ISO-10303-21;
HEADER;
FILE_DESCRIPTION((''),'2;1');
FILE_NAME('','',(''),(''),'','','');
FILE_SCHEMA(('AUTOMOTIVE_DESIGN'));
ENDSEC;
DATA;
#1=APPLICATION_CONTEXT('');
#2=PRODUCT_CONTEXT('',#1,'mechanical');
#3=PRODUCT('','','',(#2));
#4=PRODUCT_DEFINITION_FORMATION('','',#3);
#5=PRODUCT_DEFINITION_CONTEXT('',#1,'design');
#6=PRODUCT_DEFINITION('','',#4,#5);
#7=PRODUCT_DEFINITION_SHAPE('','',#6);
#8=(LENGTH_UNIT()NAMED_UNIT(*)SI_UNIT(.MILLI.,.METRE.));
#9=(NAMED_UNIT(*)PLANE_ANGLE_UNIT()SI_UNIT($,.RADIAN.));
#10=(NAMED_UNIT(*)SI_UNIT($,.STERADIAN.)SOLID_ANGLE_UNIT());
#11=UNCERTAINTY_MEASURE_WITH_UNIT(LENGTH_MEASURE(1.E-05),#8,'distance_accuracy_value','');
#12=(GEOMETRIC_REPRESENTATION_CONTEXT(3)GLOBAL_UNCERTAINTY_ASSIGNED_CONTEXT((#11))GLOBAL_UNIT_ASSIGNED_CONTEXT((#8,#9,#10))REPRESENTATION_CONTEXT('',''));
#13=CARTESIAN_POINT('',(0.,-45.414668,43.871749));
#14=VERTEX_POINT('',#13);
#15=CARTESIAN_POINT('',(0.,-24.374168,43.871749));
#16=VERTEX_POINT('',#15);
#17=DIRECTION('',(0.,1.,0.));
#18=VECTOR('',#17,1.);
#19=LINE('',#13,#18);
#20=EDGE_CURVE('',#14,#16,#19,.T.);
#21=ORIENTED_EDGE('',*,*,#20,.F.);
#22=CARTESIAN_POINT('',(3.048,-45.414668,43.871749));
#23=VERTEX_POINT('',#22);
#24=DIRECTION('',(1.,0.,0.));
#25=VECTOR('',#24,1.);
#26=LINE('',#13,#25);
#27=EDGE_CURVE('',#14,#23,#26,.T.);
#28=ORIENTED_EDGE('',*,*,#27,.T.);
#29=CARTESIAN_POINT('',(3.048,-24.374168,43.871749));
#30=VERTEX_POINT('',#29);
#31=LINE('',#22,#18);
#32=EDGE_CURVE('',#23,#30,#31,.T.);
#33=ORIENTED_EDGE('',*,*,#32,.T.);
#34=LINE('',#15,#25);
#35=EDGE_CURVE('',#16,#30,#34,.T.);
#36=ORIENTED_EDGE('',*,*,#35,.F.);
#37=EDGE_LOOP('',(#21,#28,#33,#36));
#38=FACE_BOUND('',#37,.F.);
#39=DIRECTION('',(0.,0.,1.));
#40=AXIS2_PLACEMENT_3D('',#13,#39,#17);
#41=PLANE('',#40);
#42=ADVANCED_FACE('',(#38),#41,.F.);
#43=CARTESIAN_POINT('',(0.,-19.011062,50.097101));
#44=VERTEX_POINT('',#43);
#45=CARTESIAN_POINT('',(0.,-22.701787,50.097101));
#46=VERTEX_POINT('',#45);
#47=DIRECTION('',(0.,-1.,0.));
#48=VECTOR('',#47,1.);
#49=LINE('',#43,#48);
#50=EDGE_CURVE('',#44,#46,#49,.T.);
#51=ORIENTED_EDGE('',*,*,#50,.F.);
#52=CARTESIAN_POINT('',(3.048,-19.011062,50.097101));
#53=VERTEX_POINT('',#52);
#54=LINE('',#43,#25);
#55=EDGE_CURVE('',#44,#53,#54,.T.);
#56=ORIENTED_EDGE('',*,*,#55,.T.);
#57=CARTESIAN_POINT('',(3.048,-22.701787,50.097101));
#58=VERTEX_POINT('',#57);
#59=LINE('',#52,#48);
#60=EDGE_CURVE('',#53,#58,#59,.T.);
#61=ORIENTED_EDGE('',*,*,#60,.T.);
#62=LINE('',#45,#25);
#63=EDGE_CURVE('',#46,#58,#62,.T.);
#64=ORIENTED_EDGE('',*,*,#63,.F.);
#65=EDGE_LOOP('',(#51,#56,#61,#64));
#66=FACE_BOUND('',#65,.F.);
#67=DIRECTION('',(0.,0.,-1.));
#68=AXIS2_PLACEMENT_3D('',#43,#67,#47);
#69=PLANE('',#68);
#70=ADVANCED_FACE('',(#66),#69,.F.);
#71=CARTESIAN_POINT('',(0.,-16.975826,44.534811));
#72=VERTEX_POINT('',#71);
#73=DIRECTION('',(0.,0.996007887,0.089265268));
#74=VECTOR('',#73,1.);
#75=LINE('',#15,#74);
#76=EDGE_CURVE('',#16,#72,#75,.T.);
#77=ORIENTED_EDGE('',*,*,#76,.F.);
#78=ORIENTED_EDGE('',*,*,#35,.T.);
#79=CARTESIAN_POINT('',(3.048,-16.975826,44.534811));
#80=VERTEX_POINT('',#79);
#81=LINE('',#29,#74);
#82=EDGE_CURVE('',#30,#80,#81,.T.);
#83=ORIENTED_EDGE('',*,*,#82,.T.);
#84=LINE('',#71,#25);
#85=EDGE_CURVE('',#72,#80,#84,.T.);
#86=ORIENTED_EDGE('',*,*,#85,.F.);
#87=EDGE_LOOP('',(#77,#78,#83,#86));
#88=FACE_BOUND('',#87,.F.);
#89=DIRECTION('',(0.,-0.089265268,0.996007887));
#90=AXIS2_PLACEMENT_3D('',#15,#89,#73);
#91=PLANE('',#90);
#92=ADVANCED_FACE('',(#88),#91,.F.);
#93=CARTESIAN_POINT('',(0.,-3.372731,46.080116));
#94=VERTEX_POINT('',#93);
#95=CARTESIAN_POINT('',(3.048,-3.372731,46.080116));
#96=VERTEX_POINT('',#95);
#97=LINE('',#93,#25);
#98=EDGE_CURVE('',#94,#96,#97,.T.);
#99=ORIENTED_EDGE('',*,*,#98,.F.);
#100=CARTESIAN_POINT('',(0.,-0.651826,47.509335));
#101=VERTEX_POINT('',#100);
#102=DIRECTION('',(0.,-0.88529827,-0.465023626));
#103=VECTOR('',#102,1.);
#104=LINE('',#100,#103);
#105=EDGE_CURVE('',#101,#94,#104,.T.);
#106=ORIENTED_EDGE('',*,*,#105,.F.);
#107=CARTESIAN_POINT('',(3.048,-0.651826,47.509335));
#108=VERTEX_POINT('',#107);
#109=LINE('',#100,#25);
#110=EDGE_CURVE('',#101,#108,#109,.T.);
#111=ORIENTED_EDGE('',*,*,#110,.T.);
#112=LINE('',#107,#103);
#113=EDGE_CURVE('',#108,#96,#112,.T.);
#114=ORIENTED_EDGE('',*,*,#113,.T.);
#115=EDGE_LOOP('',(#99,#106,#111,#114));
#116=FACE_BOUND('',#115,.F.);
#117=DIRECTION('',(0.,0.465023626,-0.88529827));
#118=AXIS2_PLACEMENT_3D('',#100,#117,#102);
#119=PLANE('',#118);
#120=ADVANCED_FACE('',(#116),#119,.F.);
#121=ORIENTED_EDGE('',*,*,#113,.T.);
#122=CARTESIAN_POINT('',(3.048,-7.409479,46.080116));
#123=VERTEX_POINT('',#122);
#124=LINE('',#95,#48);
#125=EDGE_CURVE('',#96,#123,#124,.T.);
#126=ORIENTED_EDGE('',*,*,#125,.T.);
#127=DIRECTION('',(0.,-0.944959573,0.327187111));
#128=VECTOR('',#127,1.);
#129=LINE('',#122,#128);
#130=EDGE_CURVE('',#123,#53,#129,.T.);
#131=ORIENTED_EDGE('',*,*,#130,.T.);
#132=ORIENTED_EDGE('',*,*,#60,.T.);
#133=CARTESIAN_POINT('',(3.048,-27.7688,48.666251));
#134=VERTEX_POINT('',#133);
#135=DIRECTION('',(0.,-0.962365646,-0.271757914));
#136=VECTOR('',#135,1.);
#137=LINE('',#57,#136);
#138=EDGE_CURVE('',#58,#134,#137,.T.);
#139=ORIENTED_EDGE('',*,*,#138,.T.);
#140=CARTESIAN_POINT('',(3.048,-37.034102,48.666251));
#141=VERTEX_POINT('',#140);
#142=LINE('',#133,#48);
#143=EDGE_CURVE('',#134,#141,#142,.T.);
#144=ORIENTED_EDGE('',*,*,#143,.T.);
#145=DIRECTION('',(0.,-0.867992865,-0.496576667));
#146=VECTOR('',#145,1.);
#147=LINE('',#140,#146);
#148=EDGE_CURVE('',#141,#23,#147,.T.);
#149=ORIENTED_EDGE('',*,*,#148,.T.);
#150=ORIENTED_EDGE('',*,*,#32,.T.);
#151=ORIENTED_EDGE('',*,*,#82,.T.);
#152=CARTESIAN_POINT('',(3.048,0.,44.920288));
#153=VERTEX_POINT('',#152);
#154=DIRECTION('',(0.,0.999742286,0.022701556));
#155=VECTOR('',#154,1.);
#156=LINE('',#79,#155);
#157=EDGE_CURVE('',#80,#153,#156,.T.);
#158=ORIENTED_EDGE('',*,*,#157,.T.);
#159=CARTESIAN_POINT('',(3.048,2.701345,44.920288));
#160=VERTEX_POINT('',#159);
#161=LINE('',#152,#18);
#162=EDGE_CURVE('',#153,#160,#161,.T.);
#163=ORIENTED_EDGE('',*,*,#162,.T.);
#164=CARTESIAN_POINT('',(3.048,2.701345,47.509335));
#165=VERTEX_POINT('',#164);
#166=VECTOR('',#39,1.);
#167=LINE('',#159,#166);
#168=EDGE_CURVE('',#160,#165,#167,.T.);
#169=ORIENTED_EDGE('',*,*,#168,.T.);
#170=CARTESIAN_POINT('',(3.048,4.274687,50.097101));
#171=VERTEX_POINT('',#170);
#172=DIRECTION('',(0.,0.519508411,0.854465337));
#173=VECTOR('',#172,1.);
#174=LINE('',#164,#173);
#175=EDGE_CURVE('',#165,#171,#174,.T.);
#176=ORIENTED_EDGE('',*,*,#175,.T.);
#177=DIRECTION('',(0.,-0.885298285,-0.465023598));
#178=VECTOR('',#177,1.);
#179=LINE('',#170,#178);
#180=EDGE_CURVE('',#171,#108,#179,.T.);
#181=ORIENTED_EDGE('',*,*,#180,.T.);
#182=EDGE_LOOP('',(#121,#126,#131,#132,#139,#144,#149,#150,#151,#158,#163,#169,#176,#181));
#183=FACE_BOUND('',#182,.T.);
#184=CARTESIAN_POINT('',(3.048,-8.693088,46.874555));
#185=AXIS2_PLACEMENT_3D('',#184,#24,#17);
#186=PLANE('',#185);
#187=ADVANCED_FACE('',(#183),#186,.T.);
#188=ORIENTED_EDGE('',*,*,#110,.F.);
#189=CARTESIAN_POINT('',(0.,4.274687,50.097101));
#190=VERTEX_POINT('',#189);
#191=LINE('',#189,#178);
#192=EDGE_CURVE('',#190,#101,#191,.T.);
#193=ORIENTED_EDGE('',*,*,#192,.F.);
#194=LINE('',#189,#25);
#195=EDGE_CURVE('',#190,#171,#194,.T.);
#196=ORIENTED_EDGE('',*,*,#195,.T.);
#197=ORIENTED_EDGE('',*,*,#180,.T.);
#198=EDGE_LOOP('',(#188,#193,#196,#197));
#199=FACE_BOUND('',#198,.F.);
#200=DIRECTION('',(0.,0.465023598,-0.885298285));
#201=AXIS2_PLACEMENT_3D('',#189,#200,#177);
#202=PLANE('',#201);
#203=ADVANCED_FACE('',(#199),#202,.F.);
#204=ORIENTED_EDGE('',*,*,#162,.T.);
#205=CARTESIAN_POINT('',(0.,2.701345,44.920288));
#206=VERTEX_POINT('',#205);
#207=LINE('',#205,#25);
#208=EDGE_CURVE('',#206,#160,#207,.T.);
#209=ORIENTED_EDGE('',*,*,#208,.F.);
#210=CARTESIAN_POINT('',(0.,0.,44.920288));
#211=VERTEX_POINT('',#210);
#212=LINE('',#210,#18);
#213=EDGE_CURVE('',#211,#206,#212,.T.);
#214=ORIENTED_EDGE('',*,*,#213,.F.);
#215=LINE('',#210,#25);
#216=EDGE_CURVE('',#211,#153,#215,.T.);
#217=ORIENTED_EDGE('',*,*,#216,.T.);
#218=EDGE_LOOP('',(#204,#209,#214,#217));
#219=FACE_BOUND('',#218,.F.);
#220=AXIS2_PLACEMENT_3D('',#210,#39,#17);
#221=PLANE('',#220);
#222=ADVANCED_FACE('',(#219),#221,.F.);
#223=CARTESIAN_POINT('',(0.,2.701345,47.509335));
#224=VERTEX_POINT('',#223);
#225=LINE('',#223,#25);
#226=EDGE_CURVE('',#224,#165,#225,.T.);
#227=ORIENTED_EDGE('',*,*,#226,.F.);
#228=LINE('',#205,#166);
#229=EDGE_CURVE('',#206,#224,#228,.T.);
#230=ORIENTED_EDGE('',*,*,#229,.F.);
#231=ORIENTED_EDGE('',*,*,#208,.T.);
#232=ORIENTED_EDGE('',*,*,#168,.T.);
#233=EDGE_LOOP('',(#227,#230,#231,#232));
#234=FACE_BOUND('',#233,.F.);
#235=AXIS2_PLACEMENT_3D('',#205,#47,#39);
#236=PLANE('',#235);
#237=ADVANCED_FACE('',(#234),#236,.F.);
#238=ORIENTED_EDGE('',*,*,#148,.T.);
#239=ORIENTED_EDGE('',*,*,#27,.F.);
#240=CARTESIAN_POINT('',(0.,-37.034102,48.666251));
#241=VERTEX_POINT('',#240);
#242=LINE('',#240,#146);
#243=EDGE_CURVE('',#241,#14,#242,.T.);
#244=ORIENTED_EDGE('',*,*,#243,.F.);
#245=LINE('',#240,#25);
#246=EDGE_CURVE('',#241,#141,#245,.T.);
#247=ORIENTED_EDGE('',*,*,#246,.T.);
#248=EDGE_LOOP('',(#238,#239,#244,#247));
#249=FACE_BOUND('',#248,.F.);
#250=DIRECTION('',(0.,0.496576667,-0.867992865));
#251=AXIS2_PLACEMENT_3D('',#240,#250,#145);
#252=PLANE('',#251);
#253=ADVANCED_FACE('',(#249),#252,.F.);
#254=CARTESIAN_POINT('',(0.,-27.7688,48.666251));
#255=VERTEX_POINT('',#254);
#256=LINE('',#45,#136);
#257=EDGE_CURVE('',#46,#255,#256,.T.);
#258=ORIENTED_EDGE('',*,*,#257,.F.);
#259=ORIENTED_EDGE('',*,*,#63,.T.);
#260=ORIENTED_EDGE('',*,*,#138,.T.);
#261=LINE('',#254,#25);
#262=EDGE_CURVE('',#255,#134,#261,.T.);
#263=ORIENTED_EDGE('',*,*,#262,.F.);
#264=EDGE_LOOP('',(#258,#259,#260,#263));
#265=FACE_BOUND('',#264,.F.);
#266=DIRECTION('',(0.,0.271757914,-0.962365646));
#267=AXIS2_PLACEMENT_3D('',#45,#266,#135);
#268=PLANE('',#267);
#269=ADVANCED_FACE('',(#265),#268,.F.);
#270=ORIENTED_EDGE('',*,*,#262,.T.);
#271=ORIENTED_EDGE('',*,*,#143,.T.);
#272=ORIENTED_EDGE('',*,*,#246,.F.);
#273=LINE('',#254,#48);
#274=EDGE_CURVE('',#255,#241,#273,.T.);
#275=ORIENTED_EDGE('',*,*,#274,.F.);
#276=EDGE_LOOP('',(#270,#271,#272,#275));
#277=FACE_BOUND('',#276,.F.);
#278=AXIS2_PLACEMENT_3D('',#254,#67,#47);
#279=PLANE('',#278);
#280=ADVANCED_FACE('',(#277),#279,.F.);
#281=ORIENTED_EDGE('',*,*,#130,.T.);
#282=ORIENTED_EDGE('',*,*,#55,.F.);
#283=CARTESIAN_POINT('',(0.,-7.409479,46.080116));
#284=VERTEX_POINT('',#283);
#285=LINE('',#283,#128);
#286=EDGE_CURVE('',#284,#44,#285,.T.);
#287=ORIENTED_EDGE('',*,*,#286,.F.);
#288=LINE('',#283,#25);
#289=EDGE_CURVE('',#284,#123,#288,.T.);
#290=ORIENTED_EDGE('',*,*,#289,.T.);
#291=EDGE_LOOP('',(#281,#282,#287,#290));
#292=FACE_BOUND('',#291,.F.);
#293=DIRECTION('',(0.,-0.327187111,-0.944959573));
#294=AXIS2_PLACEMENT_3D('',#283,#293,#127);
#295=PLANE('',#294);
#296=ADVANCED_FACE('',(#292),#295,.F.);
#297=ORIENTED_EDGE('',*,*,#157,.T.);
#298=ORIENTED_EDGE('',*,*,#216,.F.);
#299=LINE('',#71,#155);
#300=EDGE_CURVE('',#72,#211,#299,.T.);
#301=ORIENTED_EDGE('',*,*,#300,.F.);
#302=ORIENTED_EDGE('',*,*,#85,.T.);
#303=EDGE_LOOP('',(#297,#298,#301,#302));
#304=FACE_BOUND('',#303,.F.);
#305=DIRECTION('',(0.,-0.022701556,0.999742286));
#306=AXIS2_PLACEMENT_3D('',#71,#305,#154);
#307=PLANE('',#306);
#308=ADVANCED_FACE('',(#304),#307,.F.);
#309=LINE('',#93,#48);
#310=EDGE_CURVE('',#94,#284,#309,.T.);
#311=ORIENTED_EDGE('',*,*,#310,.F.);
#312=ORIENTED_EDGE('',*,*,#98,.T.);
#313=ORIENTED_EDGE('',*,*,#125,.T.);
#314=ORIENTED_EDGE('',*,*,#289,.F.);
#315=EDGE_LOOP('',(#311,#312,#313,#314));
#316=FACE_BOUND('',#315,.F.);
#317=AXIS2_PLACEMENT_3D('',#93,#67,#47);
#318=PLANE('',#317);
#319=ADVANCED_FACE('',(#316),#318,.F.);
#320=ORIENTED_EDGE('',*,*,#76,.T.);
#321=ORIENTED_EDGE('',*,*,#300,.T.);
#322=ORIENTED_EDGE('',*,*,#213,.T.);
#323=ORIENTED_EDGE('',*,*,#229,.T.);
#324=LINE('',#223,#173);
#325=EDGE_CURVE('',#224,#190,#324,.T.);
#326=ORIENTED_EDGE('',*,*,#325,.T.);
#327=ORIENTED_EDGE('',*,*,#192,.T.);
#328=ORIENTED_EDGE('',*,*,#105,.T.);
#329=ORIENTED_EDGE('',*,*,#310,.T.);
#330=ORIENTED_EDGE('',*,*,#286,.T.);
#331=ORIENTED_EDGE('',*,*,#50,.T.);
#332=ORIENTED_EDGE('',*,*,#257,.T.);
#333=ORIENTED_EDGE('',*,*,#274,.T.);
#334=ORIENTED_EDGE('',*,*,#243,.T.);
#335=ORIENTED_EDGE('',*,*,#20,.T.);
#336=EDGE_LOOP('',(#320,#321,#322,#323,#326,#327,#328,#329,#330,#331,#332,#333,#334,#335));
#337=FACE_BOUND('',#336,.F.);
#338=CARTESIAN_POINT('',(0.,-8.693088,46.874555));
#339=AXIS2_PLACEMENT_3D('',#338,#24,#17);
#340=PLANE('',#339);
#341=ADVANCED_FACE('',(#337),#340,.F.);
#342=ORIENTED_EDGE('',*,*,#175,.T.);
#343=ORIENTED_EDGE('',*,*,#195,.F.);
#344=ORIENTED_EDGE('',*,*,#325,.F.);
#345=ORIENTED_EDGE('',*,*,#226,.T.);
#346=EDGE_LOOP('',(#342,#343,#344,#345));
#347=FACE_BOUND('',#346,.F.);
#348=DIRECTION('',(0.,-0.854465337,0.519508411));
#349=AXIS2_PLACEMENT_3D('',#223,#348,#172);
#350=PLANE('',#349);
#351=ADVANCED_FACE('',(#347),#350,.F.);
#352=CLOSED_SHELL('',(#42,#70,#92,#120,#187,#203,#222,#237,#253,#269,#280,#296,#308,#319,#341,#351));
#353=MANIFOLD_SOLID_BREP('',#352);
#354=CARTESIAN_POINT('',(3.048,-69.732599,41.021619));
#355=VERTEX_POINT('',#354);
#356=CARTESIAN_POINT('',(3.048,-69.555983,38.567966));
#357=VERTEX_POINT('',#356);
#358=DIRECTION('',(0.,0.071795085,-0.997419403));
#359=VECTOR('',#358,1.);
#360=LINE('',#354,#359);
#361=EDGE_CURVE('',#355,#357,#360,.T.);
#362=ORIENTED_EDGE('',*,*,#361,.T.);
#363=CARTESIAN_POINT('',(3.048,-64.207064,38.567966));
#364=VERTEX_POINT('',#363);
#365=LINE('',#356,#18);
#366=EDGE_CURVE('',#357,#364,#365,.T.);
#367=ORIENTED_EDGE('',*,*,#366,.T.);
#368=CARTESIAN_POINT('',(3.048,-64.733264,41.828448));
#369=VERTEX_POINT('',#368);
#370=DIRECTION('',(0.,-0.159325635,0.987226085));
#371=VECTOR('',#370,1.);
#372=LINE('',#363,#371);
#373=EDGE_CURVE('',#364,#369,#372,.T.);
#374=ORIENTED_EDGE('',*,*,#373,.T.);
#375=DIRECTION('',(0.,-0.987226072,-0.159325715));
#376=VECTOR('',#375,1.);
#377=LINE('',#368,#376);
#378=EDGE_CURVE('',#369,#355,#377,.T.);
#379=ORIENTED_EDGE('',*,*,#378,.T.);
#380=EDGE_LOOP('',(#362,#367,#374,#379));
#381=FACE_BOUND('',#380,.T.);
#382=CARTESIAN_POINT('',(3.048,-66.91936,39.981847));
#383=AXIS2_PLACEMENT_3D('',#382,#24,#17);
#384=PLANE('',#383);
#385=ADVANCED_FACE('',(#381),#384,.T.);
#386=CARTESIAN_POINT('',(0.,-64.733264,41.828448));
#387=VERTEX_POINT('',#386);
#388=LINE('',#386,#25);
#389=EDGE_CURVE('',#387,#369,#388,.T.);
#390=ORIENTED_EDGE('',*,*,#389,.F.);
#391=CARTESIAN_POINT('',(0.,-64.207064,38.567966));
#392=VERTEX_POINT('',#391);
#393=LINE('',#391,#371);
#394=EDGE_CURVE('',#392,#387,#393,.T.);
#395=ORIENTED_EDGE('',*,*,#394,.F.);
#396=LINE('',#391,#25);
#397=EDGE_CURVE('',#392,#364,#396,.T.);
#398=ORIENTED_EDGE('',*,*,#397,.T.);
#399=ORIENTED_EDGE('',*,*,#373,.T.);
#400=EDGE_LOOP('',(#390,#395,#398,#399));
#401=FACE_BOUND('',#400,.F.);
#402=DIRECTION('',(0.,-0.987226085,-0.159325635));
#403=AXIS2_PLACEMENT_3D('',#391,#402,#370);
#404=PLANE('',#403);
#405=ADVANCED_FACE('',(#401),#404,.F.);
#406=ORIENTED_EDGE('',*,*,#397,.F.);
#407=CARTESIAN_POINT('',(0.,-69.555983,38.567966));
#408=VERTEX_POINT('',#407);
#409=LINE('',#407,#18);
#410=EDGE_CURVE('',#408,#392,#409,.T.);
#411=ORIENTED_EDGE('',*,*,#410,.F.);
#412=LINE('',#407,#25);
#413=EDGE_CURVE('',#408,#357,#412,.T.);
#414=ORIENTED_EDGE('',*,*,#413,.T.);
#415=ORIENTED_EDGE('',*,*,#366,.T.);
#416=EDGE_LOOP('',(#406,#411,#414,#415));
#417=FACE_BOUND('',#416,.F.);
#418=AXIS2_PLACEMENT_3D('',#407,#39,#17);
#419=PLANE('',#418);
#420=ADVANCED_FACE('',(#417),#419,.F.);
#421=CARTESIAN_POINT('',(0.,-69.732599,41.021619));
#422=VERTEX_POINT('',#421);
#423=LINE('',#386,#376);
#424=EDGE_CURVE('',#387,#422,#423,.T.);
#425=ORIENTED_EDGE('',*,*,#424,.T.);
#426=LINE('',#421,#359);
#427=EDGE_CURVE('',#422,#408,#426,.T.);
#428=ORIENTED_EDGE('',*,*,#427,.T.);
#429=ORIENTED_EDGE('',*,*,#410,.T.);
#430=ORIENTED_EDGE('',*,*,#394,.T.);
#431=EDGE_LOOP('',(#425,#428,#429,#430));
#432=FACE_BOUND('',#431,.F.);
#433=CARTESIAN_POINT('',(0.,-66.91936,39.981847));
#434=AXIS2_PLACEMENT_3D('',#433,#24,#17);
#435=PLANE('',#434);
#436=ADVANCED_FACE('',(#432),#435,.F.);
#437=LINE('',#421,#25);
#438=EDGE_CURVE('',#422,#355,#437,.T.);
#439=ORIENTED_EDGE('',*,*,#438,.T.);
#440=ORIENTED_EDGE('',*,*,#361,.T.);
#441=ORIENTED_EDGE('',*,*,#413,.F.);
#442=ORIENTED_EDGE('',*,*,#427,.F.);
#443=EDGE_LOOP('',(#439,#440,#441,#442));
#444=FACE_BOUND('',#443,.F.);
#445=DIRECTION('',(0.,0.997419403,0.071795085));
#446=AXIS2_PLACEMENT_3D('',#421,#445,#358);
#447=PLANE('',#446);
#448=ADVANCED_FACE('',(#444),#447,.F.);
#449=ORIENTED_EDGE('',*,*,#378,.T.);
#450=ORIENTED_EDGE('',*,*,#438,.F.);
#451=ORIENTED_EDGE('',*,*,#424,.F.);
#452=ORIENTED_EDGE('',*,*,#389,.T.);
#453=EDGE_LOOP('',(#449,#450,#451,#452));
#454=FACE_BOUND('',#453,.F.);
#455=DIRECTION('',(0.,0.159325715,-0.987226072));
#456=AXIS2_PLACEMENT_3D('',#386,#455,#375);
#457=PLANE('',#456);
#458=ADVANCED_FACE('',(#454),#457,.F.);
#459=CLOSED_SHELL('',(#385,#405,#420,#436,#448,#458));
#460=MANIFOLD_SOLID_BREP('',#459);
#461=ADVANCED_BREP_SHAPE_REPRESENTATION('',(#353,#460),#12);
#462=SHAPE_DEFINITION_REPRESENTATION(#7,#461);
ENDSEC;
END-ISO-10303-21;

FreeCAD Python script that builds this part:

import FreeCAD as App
import Part
import Sketcher
from FreeCAD import Vector
Q = App.Units.Quantity


def add_polygon(sketch, points):
    """Adds a closed chain of lines whose ends are joined by coincident constraints."""
    first, n = sketch.GeometryCount, len(points)
    for a, b in zip(points, points[1:] + points[:1]):
        sketch.addGeometry(Part.LineSegment(App.Vector(*a, 0), App.Vector(*b, 0)), False)
    for i in range(n):
        sketch.addConstraint(Sketcher.Constraint("Coincident", first + i, 2, first + (i + 1) % n, 1))

doc = App.newDocument("Part")
body = doc.addObject("PartDesign::Body", "Body")
body.AllowCompound = True

sketch1 = body.newObject("Sketcher::SketchObject", "Sketch")
sketch1.AttachmentSupport = (doc.getObject("YZ_Plane"), [""])
sketch1.MapMode = "FlatFace"
add_polygon(sketch1, [(-16.975826, 44.534811), (0, 44.920288), (2.701345, 44.920288), (2.701345, 47.509335), (4.274687, 50.097101), (-0.651826, 47.509335), (-3.372731, 46.080116), (-7.409479, 46.080116), (-19.011062, 50.097101), (-22.701787, 50.097101), (-27.7688, 48.666251), (-37.034102, 48.666251), (-45.414668, 43.871749), (-24.374168, 43.871749)])
add_polygon(sketch1, [(-64.207064, 38.567966), (-64.733264, 41.828448), (-69.732599, 41.021619), (-69.555983, 38.567966)])
sketch1.addConstraint([
    Sketcher.Constraint("Horizontal", 1),
    Sketcher.Constraint("Vertical", 2),
    Sketcher.Constraint("Horizontal", 6),
    Sketcher.Constraint("Horizontal", 8),
    Sketcher.Constraint("Horizontal", 10),
    Sketcher.Constraint("Horizontal", 12),
    Sketcher.Constraint("Horizontal", 17),
    Sketcher.Constraint("PointOnObject", 0, 2, -2),
    Sketcher.Constraint("Parallel", 4, 5),
    Sketcher.Constraint("Perpendicular", 14, 15),
    Sketcher.Constraint("Horizontal", 2, 2, 4, 2),
    Sketcher.Constraint("Horizontal", 3, 2, 7, 2),
    Sketcher.Constraint("DistanceX", 10, 2, 10, 1, 9.265302),
    Sketcher.Constraint("DistanceX", 12, 1, 12, 2, 21.0405),
    Sketcher.Constraint("Distance", 16, 2.460001),
    Sketcher.Constraint("DistanceX", 6, 2, 6, 1, 4.036748),
    Sketcher.Constraint("DistanceX", 17, 1, 17, 2, 5.348919),
    Sketcher.Constraint("DistanceY", -1, 1, 3, 2, 50.097101),
    Sketcher.Constraint("DistanceX", 9, 2, -1, 1, 27.7688),
    Sketcher.Constraint("DistanceX", 15, 2, -1, 1, 69.732599),
    Sketcher.Constraint("DistanceY", 14, 2, 11, 2, 2.043301),
    Sketcher.Constraint("DistanceX", 14, 2, 17, 2, 0.5262),
    Sketcher.Constraint("Distance", 3, 3.028521),
    Sketcher.Constraint("Distance", 11, 9.655109),
    Sketcher.Constraint("Distance", 14, 3.30267),
    Sketcher.Constraint("DistanceX", 1, 1, 1, 2, 2.701345),
    Sketcher.Constraint("DistanceX", 8, 2, 8, 1, 3.690725),
    Sketcher.Constraint("DistanceY", 2, 1, 2, 2, 2.589047),
    Sketcher.Constraint("DistanceX", 5, 2, -1, 1, 3.372731),
    Sketcher.Constraint("DistanceX", 7, 2, -1, 1, 19.011062),
    Sketcher.Constraint("DistanceY", -1, 1, 9, 2, 48.666251),
    Sketcher.Constraint("DistanceY", -1, 1, 11, 2, 43.871749),
    Sketcher.Constraint("DistanceY", -1, 1, 13, 2, 44.534811),
    Sketcher.Constraint("DistanceX", 4, 2, 2, 2, 3.353171),
    Sketcher.Constraint("DistanceY", 5, 2, 4, 2, 1.429219),
    Sketcher.Constraint("DistanceX", 12, 2, 13, 2, 7.398342),
])
pad1 = body.newObject("PartDesign::Pad", "Pad")
pad1.Profile = sketch1
pad1.Length = Q("0.12 in")

doc.recompute()
